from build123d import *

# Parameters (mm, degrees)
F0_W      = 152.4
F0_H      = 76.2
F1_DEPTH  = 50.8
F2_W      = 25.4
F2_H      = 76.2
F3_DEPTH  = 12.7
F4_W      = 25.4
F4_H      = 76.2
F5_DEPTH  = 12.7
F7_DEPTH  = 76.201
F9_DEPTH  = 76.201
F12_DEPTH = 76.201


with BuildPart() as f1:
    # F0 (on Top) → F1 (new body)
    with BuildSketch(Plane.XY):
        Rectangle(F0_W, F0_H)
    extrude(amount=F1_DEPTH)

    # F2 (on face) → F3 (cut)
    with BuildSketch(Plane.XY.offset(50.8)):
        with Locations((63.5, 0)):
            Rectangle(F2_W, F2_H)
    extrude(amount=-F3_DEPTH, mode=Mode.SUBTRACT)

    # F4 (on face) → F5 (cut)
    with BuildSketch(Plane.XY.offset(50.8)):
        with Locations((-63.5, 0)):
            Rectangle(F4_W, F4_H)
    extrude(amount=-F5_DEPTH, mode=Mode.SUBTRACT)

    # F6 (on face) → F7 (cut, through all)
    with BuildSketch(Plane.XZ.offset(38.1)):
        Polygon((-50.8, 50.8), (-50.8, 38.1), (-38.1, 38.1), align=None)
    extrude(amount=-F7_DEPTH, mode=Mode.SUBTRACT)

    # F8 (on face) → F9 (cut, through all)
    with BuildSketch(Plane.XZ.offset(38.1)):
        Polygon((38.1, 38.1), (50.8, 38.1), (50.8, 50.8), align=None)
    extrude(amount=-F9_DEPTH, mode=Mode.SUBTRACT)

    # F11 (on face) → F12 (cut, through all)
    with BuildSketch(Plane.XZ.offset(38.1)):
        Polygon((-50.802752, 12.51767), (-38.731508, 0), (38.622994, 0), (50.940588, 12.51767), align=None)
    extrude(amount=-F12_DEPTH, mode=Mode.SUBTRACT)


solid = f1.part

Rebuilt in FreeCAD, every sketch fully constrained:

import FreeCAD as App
import Part
import Sketcher
from FreeCAD import Vector
Q = App.Units.Quantity

doc = App.newDocument("Part")
body = doc.addObject("PartDesign::Body", "Body")

sketch1 = body.newObject("Sketcher::SketchObject", "Sketch")
sketch1.AttachmentSupport = (doc.getObject("XY_Plane"), [""])
sketch1.MapMode = "FlatFace"
sketch1.addGeometry(Part.LineSegment(Vector(-76, 38, 0), Vector(-76, -38, 0)), False)
sketch1.addGeometry(Part.LineSegment(Vector(-76, -38, 0), Vector(76, -38, 0)), False)
sketch1.addGeometry(Part.LineSegment(Vector(76, -38, 0), Vector(76, 38, 0)), False)
sketch1.addGeometry(Part.LineSegment(Vector(76, 38, 0), Vector(-76, 38, 0)), False)
sketch1.addConstraint(Sketcher.Constraint("Coincident", 0, 2, 1, 1))
sketch1.addConstraint(Sketcher.Constraint("Coincident", 1, 2, 2, 1))
sketch1.addConstraint(Sketcher.Constraint("Coincident", 2, 2, 3, 1))
sketch1.addConstraint(Sketcher.Constraint("Coincident", 3, 2, 0, 1))
sketch1.addConstraint(Sketcher.Constraint("Vertical", 0))
sketch1.addConstraint(Sketcher.Constraint("Horizontal", 1))
sketch1.addConstraint(Sketcher.Constraint("Vertical", 2))
sketch1.addConstraint(Sketcher.Constraint("Horizontal", 3))
sketch1.addConstraint(Sketcher.Constraint("Symmetric", 0, 2, 2, 2, -1, 1))
sketch1.addConstraint(Sketcher.Constraint("DistanceX", 1, 1, 1, 2, Q("6 in")))
sketch1.addConstraint(Sketcher.Constraint("DistanceY", 0, 2, 0, 1, Q("3 in")))
pad1 = body.newObject("PartDesign::Pad", "Pad")
pad1.Profile = sketch1
pad1.Length = Q("2 in")

sketch2 = body.newObject("Sketcher::SketchObject", "Sketch001")
sketch2.AttachmentSupport = (doc.getObject("XY_Plane"), [""])
sketch2.MapMode = "FlatFace"
sketch2.AttachmentOffset = App.Placement(Vector(0, 0, 2 * 25.4), App.Rotation())
sketch2.addGeometry(Part.LineSegment(Vector(51, 38, 0), Vector(51, -38, 0)), False)
sketch2.addGeometry(Part.LineSegment(Vector(51, -38, 0), Vector(76, -38, 0)), False)
sketch2.addGeometry(Part.LineSegment(Vector(76, -38, 0), Vector(76, 38, 0)), False)
sketch2.addGeometry(Part.LineSegment(Vector(76, 38, 0), Vector(51, 38, 0)), False)
sketch2.addConstraint(Sketcher.Constraint("Coincident", 0, 2, 1, 1))
sketch2.addConstraint(Sketcher.Constraint("Coincident", 1, 2, 2, 1))
sketch2.addConstraint(Sketcher.Constraint("Coincident", 2, 2, 3, 1))
sketch2.addConstraint(Sketcher.Constraint("Coincident", 3, 2, 0, 1))
sketch2.addConstraint(Sketcher.Constraint("Vertical", 0))
sketch2.addConstraint(Sketcher.Constraint("Horizontal", 1))
sketch2.addConstraint(Sketcher.Constraint("Vertical", 2))
sketch2.addConstraint(Sketcher.Constraint("Horizontal", 3))
sketch2.addConstraint(Sketcher.Constraint("DistanceX", 1, 1, 1, 2, Q("1 in")))
sketch2.addConstraint(Sketcher.Constraint("DistanceY", 0, 2, 0, 1, Q("3 in")))
sketch2.addConstraint(Sketcher.Constraint("DistanceX", -1, 1, 0, 2, Q("2 in")))
sketch2.addConstraint(Sketcher.Constraint("DistanceY", 0, 2, -1, 1, Q("1.5 in")))
pocket1 = body.newObject("PartDesign::Pocket", "Pocket")
pocket1.Profile = sketch2
pocket1.Length = Q("0.5 in")

sketch3 = body.newObject("Sketcher::SketchObject", "Sketch002")
sketch3.AttachmentSupport = (doc.getObject("XY_Plane"), [""])
sketch3.MapMode = "FlatFace"
sketch3.AttachmentOffset = App.Placement(Vector(0, 0, 2 * 25.4), App.Rotation())
sketch3.addGeometry(Part.LineSegment(Vector(-76, 38, 0), Vector(-76, -38, 0)), False)
sketch3.addGeometry(Part.LineSegment(Vector(-76, -38, 0), Vector(-51, -38, 0)), False)
sketch3.addGeometry(Part.LineSegment(Vector(-51, -38, 0), Vector(-51, 38, 0)), False)
sketch3.addGeometry(Part.LineSegment(Vector(-51, 38, 0), Vector(-76, 38, 0)), False)
sketch3.addConstraint(Sketcher.Constraint("Coincident", 0, 2, 1, 1))
sketch3.addConstraint(Sketcher.Constraint("Coincident", 1, 2, 2, 1))
sketch3.addConstraint(Sketcher.Constraint("Coincident", 2, 2, 3, 1))
sketch3.addConstraint(Sketcher.Constraint("Coincident", 3, 2, 0, 1))
sketch3.addConstraint(Sketcher.Constraint("Vertical", 0))
sketch3.addConstraint(Sketcher.Constraint("Horizontal", 1))
sketch3.addConstraint(Sketcher.Constraint("Vertical", 2))
sketch3.addConstraint(Sketcher.Constraint("Horizontal", 3))
sketch3.addConstraint(Sketcher.Constraint("DistanceX", 1, 1, 1, 2, Q("1 in")))
sketch3.addConstraint(Sketcher.Constraint("DistanceY", 0, 2, 0, 1, Q("3 in")))
sketch3.addConstraint(Sketcher.Constraint("DistanceX", 0, 2, -1, 1, Q("3 in")))
sketch3.addConstraint(Sketcher.Constraint("DistanceY", 0, 2, -1, 1, Q("1.5 in")))
pocket2 = body.newObject("PartDesign::Pocket", "Pocket001")
pocket2.Profile = sketch3
pocket2.Length = Q("0.5 in")

sketch4 = body.newObject("Sketcher::SketchObject", "Sketch003")
sketch4.AttachmentSupport = (doc.getObject("XZ_Plane"), [""])
sketch4.MapMode = "FlatFace"
sketch4.AttachmentOffset = App.Placement(Vector(0, 0, 1.5 * 25.4), App.Rotation())
sketch4.addGeometry(Part.LineSegment(Vector(-51, 51, 0), Vector(-51, 38, 0)), False)
sketch4.addGeometry(Part.LineSegment(Vector(-51, 38, 0), Vector(-38, 38, 0)), False)
sketch4.addGeometry(Part.LineSegment(Vector(-38, 38, 0), Vector(-51, 51, 0)), False)
sketch4.addConstraint(Sketcher.Constraint("Coincident", 0, 2, 1, 1))
sketch4.addConstraint(Sketcher.Constraint("Coincident", 1, 2, 2, 1))
sketch4.addConstraint(Sketcher.Constraint("Coincident", 2, 2, 0, 1))
sketch4.addConstraint(Sketcher.Constraint("Vertical", 0))
sketch4.addConstraint(Sketcher.Constraint("Horizontal", 1))
sketch4.addConstraint(Sketcher.Constraint("Equal", 1, 0))
sketch4.addConstraint(Sketcher.Constraint("DistanceX", 1, 1, 1, 2, Q("0.5 in")))
sketch4.addConstraint(Sketcher.Constraint("DistanceX", 0, 2, -1, 1, Q("2 in")))
sketch4.addConstraint(Sketcher.Constraint("DistanceY", -1, 1, 2, 2, Q("2 in")))
pocket3 = body.newObject("PartDesign::Pocket", "Pocket002")
pocket3.Profile = sketch4
pocket3.Type = "ThroughAll"

sketch5 = body.newObject("Sketcher::SketchObject", "Sketch004")
sketch5.AttachmentSupport = (doc.getObject("XZ_Plane"), [""])
sketch5.MapMode = "FlatFace"
sketch5.AttachmentOffset = App.Placement(Vector(0, 0, 1.5 * 25.4), App.Rotation())
sketch5.addGeometry(Part.LineSegment(Vector(38, 38, 0), Vector(51, 38, 0)), False)
sketch5.addGeometry(Part.LineSegment(Vector(51, 38, 0), Vector(51, 51, 0)), False)
sketch5.addGeometry(Part.LineSegment(Vector(51, 51, 0), Vector(38, 38, 0)), False)
sketch5.addConstraint(Sketcher.Constraint("Coincident", 0, 2, 1, 1))
sketch5.addConstraint(Sketcher.Constraint("Coincident", 1, 2, 2, 1))
sketch5.addConstraint(Sketcher.Constraint("Coincident", 2, 2, 0, 1))
sketch5.addConstraint(Sketcher.Constraint("Horizontal", 0))
sketch5.addConstraint(Sketcher.Constraint("Vertical", 1))
sketch5.addConstraint(Sketcher.Constraint("Equal", 0, 1))
sketch5.addConstraint(Sketcher.Constraint("DistanceX", 0, 1, 0, 2, Q("0.5 in")))
sketch5.addConstraint(Sketcher.Constraint("DistanceX", -1, 1, 0, 2, Q("2 in")))
sketch5.addConstraint(Sketcher.Constraint("DistanceY", -1, 1, 1, 2, Q("2 in")))
pocket4 = body.newObject("PartDesign::Pocket", "Pocket003")
pocket4.Profile = sketch5
pocket4.Type = "ThroughAll"

sketch6 = body.newObject("Sketcher::SketchObject", "Sketch005")
sketch6.AttachmentSupport = (doc.getObject("XZ_Plane"), [""])
sketch6.MapMode = "FlatFace"
sketch6.AttachmentOffset = App.Placement(Vector(0, 0, 1.5 * 25.4), App.Rotation())
sketch6.addGeometry(Part.LineSegment(Vector(-51, 13, 0), Vector(-39, 0, 0)), False)
sketch6.addGeometry(Part.LineSegment(Vector(-39, 0, 0), Vector(39, 0, 0)), False)
sketch6.addGeometry(Part.LineSegment(Vector(39, 0, 0), Vector(51, 13, 0)), False)
sketch6.addGeometry(Part.LineSegment(Vector(51, 13, 0), Vector(-51, 13, 0)), False)
sketch6.addConstraint(Sketcher.Constraint("Coincident", 0, 2, 1, 1))
sketch6.addConstraint(Sketcher.Constraint("Coincident", 1, 2, 2, 1))
sketch6.addConstraint(Sketcher.Constraint("Coincident", 2, 2, 3, 1))
sketch6.addConstraint(Sketcher.Constraint("Coincident", 3, 2, 0, 1))
sketch6.addConstraint(Sketcher.Constraint("Horizontal", 1))
sketch6.addConstraint(Sketcher.Constraint("Horizontal", 3))
sketch6.addConstraint(Sketcher.Constraint("PointOnObject", 0, 2, -1))
sketch6.addConstraint(Sketcher.Constraint("DistanceX", 1, 1, 1, 2, 77.354502))
sketch6.addConstraint(Sketcher.Constraint("DistanceX", 3, 2, 3, 1, 101.74334))
sketch6.addConstraint(Sketcher.Constraint("DistanceY", -1, 1, 2, 2, 12.51767))
sketch6.addConstraint(Sketcher.Constraint("DistanceX", 3, 2, -1, 1, 50.802752))
sketch6.addConstraint(Sketcher.Constraint("Distance", 0, 17.389853))
pocket5 = body.newObject("PartDesign::Pocket", "Pocket004")
pocket5.Profile = sketch6
pocket5.Type = "ThroughAll"

doc.recompute()
